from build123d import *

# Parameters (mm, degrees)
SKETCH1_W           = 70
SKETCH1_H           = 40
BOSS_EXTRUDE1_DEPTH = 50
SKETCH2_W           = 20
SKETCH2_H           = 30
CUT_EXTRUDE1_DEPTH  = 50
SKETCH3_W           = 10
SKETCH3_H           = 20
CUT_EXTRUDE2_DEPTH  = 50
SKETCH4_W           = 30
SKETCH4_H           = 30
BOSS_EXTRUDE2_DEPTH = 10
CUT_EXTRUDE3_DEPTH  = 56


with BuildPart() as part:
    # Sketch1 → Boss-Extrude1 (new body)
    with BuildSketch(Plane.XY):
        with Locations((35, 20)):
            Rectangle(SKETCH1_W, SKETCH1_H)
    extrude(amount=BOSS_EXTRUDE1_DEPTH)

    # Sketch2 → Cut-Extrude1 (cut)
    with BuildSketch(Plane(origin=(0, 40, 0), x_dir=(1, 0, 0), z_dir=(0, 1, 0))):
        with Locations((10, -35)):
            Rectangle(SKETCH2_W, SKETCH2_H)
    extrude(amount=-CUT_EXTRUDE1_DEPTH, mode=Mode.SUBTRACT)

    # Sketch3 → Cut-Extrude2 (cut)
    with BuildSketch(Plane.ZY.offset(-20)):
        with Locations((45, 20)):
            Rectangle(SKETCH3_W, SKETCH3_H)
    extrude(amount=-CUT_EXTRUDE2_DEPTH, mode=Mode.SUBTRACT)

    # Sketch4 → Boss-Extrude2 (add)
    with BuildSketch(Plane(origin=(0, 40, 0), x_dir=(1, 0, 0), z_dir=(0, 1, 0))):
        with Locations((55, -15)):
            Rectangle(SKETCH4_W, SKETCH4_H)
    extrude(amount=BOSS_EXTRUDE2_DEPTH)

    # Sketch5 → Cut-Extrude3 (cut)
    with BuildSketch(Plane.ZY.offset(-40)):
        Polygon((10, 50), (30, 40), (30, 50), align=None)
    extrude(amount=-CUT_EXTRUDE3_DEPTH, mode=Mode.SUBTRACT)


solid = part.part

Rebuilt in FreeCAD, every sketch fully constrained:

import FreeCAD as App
import Part
import Sketcher

V = App.Vector
Q = App.Units.Quantity


def add_polygon(sketch, points):
    """Adds a closed chain of lines whose ends are joined by coincident constraints."""
    first, n = sketch.GeometryCount, len(points)
    for a, b in zip(points, points[1:] + points[:1]):
        sketch.addGeometry(Part.LineSegment(App.Vector(*a, 0), App.Vector(*b, 0)), False)
    for i in range(n):
        sketch.addConstraint(Sketcher.Constraint("Coincident", first + i, 2, first + (i + 1) % n, 1))

doc = App.newDocument("Part")
params = doc.addObject("Spreadsheet::Sheet", "Params")
for row, (alias, value) in enumerate([
    ("sketch1_width", "70 mm"),
    ("sketch1_height", "40 mm"),
    ("pad1_length", "50 mm"),
    ("sketch2_width", "20 mm"),
    ("sketch2_height", "30 mm"),
    ("pocket1_length", "50 mm"),
    ("sketch3_width", "20 mm"),
    ("sketch3_height", "10 mm"),
    ("pocket2_length", "50 mm"),
    ("sketch4_width", "30 mm"),
    ("pad2_length", "10 mm"),
    ("sketch5_width", "10 mm"),
    ("sketch5_height", "20 mm"),
    ("pocket3_length", "56 mm"),
], start=1):
    params.set(f"A{row}", alias)
    params.set(f"B{row}", "=" + value)
    params.setAlias(f"B{row}", alias)

body = doc.addObject("PartDesign::Body", "Body")

sketch1 = doc.addObject("Sketcher::SketchObject", "Sketch")
body.addObject(sketch1)
sketch1.AttachmentSupport = (doc.XY_Plane, [""])
sketch1.MapMode = "FlatFace"
add_polygon(sketch1, [(0, 40), (0, 0), (70, 0), (70, 40)])
sketch1.addConstraint([
    Sketcher.Constraint("Vertical", 0),
    Sketcher.Constraint("Horizontal", 1),
    Sketcher.Constraint("Vertical", 2),
    Sketcher.Constraint("Horizontal", 3),
    Sketcher.Constraint("Coincident", 0, 2, -1, 1),
    Sketcher.Constraint("DistanceX", 1, 1, 1, 2, Q("70 mm")),
    Sketcher.Constraint("DistanceY", 0, 2, 0, 1, Q("40 mm")),
])
sketch1.setExpression("Constraints[9]", "Params.sketch1_width")
sketch1.setExpression("Constraints[10]", "Params.sketch1_height")
pad1 = doc.addObject("PartDesign::Pad", "Pad")
body.addObject(pad1)
pad1.Profile = sketch1
pad1.setExpression("Length", "Params.pad1_length")

sketch2 = doc.addObject("Sketcher::SketchObject", "Sketch001")
body.addObject(sketch2)
sketch2.AttachmentSupport = (doc.XZ_Plane, [""])
sketch2.MapMode = "FlatFace"
sketch2.AttachmentOffset = App.Placement(V(0, 0, -40), App.Rotation())
add_polygon(sketch2, [(0, 20), (0, 50), (20, 50), (20, 20)])
sketch2.addConstraint([
    Sketcher.Constraint("Vertical", 0),
    Sketcher.Constraint("Horizontal", 1),
    Sketcher.Constraint("Vertical", 2),
    Sketcher.Constraint("Horizontal", 3),
    Sketcher.Constraint("PointOnObject", 0, 2, -2),
    Sketcher.Constraint("DistanceX", 1, 1, 1, 2, Q("20 mm")),
    Sketcher.Constraint("DistanceY", 0, 1, 0, 2, Q("30 mm")),
    Sketcher.Constraint("DistanceY", -1, 1, 0, 2, Q("50 mm")),
])
sketch2.setExpression("Constraints[9]", "Params.sketch2_width")
sketch2.setExpression("Constraints[10]", "Params.sketch2_height")
pocket1 = doc.addObject("PartDesign::Pocket", "Pocket")
body.addObject(pocket1)
pocket1.Profile = sketch2
pocket1.setExpression("Length", "Params.pocket1_length")
pocket1.Reversed = True

sketch3 = doc.addObject("Sketcher::SketchObject", "Sketch002")
body.addObject(sketch3)
sketch3.AttachmentSupport = (doc.YZ_Plane, [""])
sketch3.MapMode = "FlatFace"
sketch3.AttachmentOffset = App.Placement(V(0, 0, 20), App.Rotation())
add_polygon(sketch3, [(30, 40), (10, 40), (10, 50), (30, 50)])
sketch3.addConstraint([
    Sketcher.Constraint("Horizontal", 0),
    Sketcher.Constraint("Vertical", 1),
    Sketcher.Constraint("Horizontal", 2),
    Sketcher.Constraint("Vertical", 3),
    Sketcher.Constraint("DistanceX", 0, 2, 0, 1, Q("20 mm")),
    Sketcher.Constraint("DistanceY", 1, 1, 1, 2, Q("10 mm")),
    Sketcher.Constraint("DistanceX", -1, 1, 0, 2, Q("10 mm")),
    Sketcher.Constraint("DistanceY", -1, 1, 0, 2, Q("40 mm")),
])
sketch3.setExpression("Constraints[8]", "Params.sketch3_width")
sketch3.setExpression("Constraints[9]", "Params.sketch3_height")
pocket2 = doc.addObject("PartDesign::Pocket", "Pocket001")
body.addObject(pocket2)
pocket2.Profile = sketch3
pocket2.setExpression("Length", "Params.pocket2_length")
pocket2.Reversed = True

sketch4 = doc.addObject("Sketcher::SketchObject", "Sketch003")
body.addObject(sketch4)
sketch4.AttachmentSupport = (doc.XZ_Plane, [""])
sketch4.MapMode = "FlatFace"
sketch4.AttachmentOffset = App.Placement(V(0, 0, -40), App.Rotation())
add_polygon(sketch4, [(40, 0), (40, 30), (70, 30), (70, 0)])
sketch4.addConstraint([
    Sketcher.Constraint("Vertical", 0),
    Sketcher.Constraint("Horizontal", 1),
    Sketcher.Constraint("Vertical", 2),
    Sketcher.Constraint("Horizontal", 3),
    Sketcher.Constraint("PointOnObject", 2, 2, -1),
    Sketcher.Constraint("Equal", 3, 0),
    Sketcher.Constraint("DistanceX", 1, 1, 1, 2, Q("30 mm")),
    Sketcher.Constraint("DistanceX", -1, 1, 0, 2, Q("40 mm")),
])
sketch4.setExpression("Constraints[10]", "Params.sketch4_width")
pad2 = doc.addObject("PartDesign::Pad", "Pad001")
body.addObject(pad2)
pad2.Profile = sketch4
pad2.setExpression("Length", "Params.pad2_length")
pad2.Reversed = True

sketch5 = doc.addObject("Sketcher::SketchObject", "Sketch004")
body.addObject(sketch5)
sketch5.AttachmentSupport = (doc.YZ_Plane, [""])
sketch5.MapMode = "FlatFace"
sketch5.AttachmentOffset = App.Placement(V(0, 0, 40), App.Rotation())
add_polygon(sketch5, [(50, 10), (40, 30), (50, 30)])
sketch5.addConstraint([
    Sketcher.Constraint("Horizontal", 1),
    Sketcher.Constraint("Vertical", 2),
    Sketcher.Constraint("DistanceX", 1, 1, 1, 2, Q("10 mm")),
    Sketcher.Constraint("DistanceY", 2, 2, 2, 1, Q("20 mm")),
    Sketcher.Constraint("DistanceX", -1, 1, 0, 2, Q("40 mm")),
    Sketcher.Constraint("DistanceY", -1, 1, 0, 2, Q("30 mm")),
])
sketch5.setExpression("Constraints[5]", "Params.sketch5_width")
sketch5.setExpression("Constraints[6]", "Params.sketch5_height")
pocket3 = doc.addObject("PartDesign::Pocket", "Pocket002")
body.addObject(pocket3)
pocket3.Profile = sketch5
pocket3.setExpression("Length", "Params.pocket3_length")
pocket3.Reversed = True

doc.recompute()
